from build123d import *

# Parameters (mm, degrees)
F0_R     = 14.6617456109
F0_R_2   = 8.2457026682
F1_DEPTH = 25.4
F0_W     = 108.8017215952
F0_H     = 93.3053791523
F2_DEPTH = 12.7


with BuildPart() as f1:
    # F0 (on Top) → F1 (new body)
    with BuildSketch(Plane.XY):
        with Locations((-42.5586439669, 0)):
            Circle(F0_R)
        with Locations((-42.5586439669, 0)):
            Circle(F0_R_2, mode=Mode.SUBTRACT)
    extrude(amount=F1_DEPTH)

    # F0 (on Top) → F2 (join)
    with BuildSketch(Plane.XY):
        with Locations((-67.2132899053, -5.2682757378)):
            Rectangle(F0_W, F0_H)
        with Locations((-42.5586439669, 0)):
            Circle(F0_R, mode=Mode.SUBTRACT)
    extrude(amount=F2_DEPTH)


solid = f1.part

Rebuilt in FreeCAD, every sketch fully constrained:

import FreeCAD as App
import Part
import Sketcher
from FreeCAD import Vector
Q = App.Units.Quantity

doc = App.newDocument("Part")
body = doc.addObject("PartDesign::Body", "Body")

# Sketch on XY plane
sketch1 = body.newObject("Sketcher::SketchObject", "Sketch")
sketch1.AttachmentSupport = (doc.getObject("XY_Plane"), [""])
sketch1.MapMode = "FlatFace"
sketch1.addGeometry([
    Part.Circle(Vector(-43, 0, 0), Vector(0, 0, 1), 15),
    Part.Circle(Vector(-43, 0, 0), Vector(0, 0, 1), 8),
], False)
sketch1.addConstraint([
    Sketcher.Constraint("Coincident", 1, 3, 0, 3),
    Sketcher.Constraint("PointOnObject", 0, 3, -1),
    Sketcher.Constraint("Diameter", 0, Q("29.323491 mm")),
    Sketcher.Constraint("Diameter", 1, Q("16.491405 mm")),
    Sketcher.Constraint("DistanceX", 0, 3, -1, 1, Q("42.558644 mm")),
])
pad1 = body.newObject("PartDesign::Pad", "Pad")
pad1.Profile = sketch1
pad1.Length = Q("1 in")

# Sketch on XY plane
sketch2 = body.newObject("Sketcher::SketchObject", "Sketch001")
sketch2.AttachmentSupport = (doc.getObject("XY_Plane"), [""])
sketch2.MapMode = "FlatFace"
sketch2.addGeometry([
    Part.LineSegment(Vector(-122, 41, 0), Vector(-122, -52, 0)),  # 0
    Part.LineSegment(Vector(-122, -52, 0), Vector(-13, -52, 0)),  # 1
    Part.LineSegment(Vector(-13, -52, 0), Vector(-13, 41, 0)),  # 2
    Part.LineSegment(Vector(-13, 41, 0), Vector(-122, 41, 0)),  # 3
    Part.Circle(Vector(-43, 0, 0), Vector(0, 0, 1), 15),  # 4
], False)
sketch2.addConstraint([
    Sketcher.Constraint("Coincident", 0, 2, 1, 1),
    Sketcher.Constraint("Coincident", 1, 2, 2, 1),
    Sketcher.Constraint("Coincident", 2, 2, 3, 1),
    Sketcher.Constraint("Coincident", 3, 2, 0, 1),
    Sketcher.Constraint("Vertical", 0),
    Sketcher.Constraint("Horizontal", 1),
    Sketcher.Constraint("Vertical", 2),
    Sketcher.Constraint("Horizontal", 3),
    Sketcher.Constraint("PointOnObject", 4, 3, -1),
    Sketcher.Constraint("Diameter", 4, Q("29.323491 mm")),
    Sketcher.Constraint("DistanceX", 1, 1, 1, 2, Q("108.801722 mm")),
    Sketcher.Constraint("DistanceY", 0, 2, 0, 1, Q("93.305379 mm")),
    Sketcher.Constraint("DistanceX", 0, 2, -1, 1, Q("121.614151 mm")),
    Sketcher.Constraint("DistanceX", 4, 3, -1, 1, Q("42.558644 mm")),
    Sketcher.Constraint("DistanceY", 0, 2, -1, 1, Q("51.920965 mm")),
])
pad2 = body.newObject("PartDesign::Pad", "Pad001")
pad2.Profile = sketch2
pad2.Length = Q("0.5 in")

doc.recompute()
